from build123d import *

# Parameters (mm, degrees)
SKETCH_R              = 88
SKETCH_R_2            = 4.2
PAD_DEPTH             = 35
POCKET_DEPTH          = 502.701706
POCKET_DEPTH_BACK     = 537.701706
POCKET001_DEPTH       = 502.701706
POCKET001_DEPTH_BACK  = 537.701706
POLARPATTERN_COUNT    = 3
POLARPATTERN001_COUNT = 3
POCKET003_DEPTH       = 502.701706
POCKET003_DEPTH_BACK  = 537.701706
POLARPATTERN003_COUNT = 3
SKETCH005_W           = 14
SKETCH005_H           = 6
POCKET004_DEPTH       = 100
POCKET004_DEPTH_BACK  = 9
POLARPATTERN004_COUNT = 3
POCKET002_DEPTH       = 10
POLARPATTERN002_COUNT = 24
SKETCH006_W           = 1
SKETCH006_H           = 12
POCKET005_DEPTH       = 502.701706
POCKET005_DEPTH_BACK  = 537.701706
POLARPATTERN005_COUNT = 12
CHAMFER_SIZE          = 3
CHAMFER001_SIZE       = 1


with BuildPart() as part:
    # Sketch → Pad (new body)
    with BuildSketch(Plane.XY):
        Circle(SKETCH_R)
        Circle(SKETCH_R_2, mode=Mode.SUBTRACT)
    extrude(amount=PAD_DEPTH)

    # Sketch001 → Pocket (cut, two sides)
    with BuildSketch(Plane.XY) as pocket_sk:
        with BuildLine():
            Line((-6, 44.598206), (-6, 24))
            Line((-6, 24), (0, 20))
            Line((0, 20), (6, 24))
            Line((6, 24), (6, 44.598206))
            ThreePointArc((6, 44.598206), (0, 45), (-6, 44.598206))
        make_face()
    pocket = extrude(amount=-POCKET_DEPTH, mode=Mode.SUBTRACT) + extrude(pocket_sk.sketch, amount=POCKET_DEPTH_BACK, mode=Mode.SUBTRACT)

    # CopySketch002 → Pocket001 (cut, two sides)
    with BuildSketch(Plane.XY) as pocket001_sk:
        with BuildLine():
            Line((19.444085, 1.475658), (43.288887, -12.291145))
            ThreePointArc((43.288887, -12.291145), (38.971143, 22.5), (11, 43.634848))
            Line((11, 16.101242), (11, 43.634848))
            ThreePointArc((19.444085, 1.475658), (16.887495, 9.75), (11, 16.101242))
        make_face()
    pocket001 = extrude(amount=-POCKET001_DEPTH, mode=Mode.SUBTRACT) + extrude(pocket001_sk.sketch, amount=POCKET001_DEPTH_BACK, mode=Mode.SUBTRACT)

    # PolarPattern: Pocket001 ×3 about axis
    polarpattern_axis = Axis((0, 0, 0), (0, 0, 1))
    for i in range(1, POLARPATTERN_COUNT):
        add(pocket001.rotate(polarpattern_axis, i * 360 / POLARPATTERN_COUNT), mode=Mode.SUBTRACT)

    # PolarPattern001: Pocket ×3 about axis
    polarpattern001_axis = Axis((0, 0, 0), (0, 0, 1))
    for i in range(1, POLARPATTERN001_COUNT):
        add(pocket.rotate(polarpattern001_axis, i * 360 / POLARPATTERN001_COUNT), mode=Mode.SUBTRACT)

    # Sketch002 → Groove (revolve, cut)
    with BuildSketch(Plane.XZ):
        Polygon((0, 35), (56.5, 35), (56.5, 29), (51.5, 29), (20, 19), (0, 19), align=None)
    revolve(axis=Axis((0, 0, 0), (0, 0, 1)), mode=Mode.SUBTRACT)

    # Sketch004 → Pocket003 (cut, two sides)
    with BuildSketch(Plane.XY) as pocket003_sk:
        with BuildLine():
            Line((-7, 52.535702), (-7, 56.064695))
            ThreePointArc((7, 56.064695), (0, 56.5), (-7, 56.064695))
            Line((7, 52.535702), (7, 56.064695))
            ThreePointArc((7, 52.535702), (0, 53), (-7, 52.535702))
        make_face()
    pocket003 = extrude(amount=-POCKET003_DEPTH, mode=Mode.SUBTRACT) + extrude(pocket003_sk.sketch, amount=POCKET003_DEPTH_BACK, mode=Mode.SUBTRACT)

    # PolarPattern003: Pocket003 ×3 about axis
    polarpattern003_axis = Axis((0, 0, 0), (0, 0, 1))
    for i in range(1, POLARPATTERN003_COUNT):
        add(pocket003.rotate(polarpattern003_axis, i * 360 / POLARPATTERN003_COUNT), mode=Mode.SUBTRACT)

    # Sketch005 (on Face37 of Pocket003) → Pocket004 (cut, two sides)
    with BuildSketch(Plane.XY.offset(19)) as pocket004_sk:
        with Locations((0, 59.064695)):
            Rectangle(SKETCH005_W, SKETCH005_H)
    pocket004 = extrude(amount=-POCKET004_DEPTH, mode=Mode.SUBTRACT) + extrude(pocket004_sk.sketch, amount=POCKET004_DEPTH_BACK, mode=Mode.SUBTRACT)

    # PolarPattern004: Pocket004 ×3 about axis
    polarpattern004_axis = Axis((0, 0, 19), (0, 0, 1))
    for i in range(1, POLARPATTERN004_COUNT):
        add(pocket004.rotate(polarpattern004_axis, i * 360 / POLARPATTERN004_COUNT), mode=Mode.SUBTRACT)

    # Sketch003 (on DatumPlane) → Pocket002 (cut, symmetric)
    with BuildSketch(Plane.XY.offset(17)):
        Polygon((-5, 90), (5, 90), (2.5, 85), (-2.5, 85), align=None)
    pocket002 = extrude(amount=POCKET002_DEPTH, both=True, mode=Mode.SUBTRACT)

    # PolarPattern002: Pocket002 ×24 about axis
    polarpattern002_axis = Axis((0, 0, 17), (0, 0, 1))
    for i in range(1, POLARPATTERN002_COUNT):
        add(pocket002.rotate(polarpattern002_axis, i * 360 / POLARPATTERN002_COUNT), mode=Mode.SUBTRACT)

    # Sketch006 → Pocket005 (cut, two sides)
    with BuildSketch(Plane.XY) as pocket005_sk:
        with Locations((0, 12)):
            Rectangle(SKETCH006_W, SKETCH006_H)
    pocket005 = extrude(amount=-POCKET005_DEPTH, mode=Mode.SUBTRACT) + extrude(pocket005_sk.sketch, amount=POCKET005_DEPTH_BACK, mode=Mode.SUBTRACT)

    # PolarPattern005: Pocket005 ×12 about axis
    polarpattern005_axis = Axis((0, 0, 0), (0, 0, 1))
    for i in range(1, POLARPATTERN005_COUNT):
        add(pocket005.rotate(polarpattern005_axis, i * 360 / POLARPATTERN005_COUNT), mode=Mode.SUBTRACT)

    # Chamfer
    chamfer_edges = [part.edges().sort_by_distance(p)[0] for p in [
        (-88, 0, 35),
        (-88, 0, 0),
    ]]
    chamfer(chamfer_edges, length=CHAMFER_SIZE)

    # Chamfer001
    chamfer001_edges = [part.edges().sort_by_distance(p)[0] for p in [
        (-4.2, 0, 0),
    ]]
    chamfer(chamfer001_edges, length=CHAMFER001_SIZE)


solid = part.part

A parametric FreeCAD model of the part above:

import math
import FreeCAD as App
import Part
import Sketcher

V = App.Vector
Q = App.Units.Quantity


def edges_at(feature, points):
    """Names of the edges that pass closest to the given points."""
    edges = feature.Shape.Edges
    near = lambda p: min(range(len(edges)), key=lambda i: edges[i].distToShape(Part.Vertex(*p))[0])
    return sorted({f"Edge{near(p) + 1}" for p in points})

doc = App.newDocument("Part")
body = doc.addObject("PartDesign::Body", "Body")

# Sketch on XY plane
sketch1 = body.newObject("Sketcher::SketchObject", "Sketch")
sketch1.AttachmentSupport = (doc.getObject("XY_Plane"), [""])
sketch1.MapMode = "FlatFace"
sketch1.addGeometry(Part.Circle(V(0, 0, 0), V(0, 0, 1), 88), False)
sketch1.addGeometry(Part.Circle(V(0, 0, 0), V(0, 0, 1), 4.2), False)
sketch1.addConstraint(Sketcher.Constraint("Coincident", 0, 3, -1, 1))
sketch1.addConstraint(Sketcher.Constraint("Coincident", 1, 3, -1, 1))
sketch1.addConstraint(Sketcher.Constraint("Diameter", 0, Q("176 mm")))
sketch1.addConstraint(Sketcher.Constraint("Diameter", 1, Q("8.4 mm")))
pad1 = body.newObject("PartDesign::Pad", "Pad")
pad1.Profile = sketch1
pad1.Length = 35

# Sketch on XY plane
sketch2 = body.newObject("Sketcher::SketchObject", "Sketch001")
sketch2.AttachmentSupport = (doc.getObject("XY_Plane"), [""])
sketch2.MapMode = "FlatFace"
sketch2.addGeometry(Part.LineSegment(V(-6, 44.598206, 0), V(-6, 24, 0)), False)
sketch2.addGeometry(Part.LineSegment(V(-6, 24, 0), V(0, 20, 0)), False)
sketch2.addGeometry(Part.LineSegment(V(0, 20, 0), V(6, 24, 0)), False)
sketch2.addGeometry(Part.LineSegment(V(6, 24, 0), V(6, 44.598206, 0)), False)
sketch2.addGeometry(Part.ArcOfCircle(Part.Circle(V(0, 0.000027, 0), V(0, 0, 1), 44.999973), math.radians(82.33774), math.radians(97.66226)), False)
sketch2.addConstraint(Sketcher.Constraint("Coincident", 0, 2, 1, 1))
sketch2.addConstraint(Sketcher.Constraint("Coincident", 1, 2, 2, 1))
sketch2.addConstraint(Sketcher.Constraint("Coincident", 2, 2, 3, 1))
sketch2.addConstraint(Sketcher.Constraint("Coincident", 3, 2, 4, 1))
sketch2.addConstraint(Sketcher.Constraint("Coincident", 4, 2, 0, 1))
sketch2.addConstraint(Sketcher.Constraint("Vertical", 0))
sketch2.addConstraint(Sketcher.Constraint("Vertical", 3))
sketch2.addConstraint(Sketcher.Constraint("Symmetric", 0, 2, 2, 2, -2))
sketch2.addConstraint(Sketcher.Constraint("PointOnObject", 4, 3, -2))
sketch2.addConstraint(Sketcher.Constraint("PointOnObject", 1, 2, -2))
sketch2.addConstraint(Sketcher.Constraint("DistanceX", 0, 2, -1, 1, Q("6 mm")))
sketch2.addConstraint(Sketcher.Constraint("DistanceY", -1, 1, 0, 2, Q("24 mm")))
sketch2.addConstraint(Sketcher.Constraint("DistanceY", -1, 1, 1, 2, Q("20 mm")))
sketch2.addConstraint(Sketcher.Constraint("Radius", 4, Q("44.999973 mm")))
sketch2.addConstraint(Sketcher.Constraint("DistanceY", 0, 2, 0, 1, Q("20.598206 mm")))
pocket1 = body.newObject("PartDesign::Pocket", "Pocket")
pocket1.Profile = sketch2
pocket1.Type = "ThroughAll"
pocket1.Midplane = True

# Sketch on XY plane
sketch3 = body.newObject("Sketcher::SketchObject", "Sketch002")
sketch3.AttachmentSupport = (doc.getObject("XY_Plane"), [""])
sketch3.MapMode = "FlatFace"
sketch3.addGeometry(Part.LineSegment(V(19.444085, 1.475658, 0), V(43.288887, -12.291145, 0)), False)
sketch3.addGeometry(Part.ArcOfCircle(Part.Circle(V(0.000001, 0, 0), V(0, 0, 1), 44.999999), math.radians(-15.850996), math.radians(75.850996)), False)
sketch3.addGeometry(Part.LineSegment(V(11, 43.634848, 0), V(11, 16.101242, 0)), False)
sketch3.addGeometry(Part.ArcOfCircle(Part.Circle(V(-0.000003, -0.000002, 0), V(0, 0, 1), 19.500003), math.radians(4.339999), math.radians(55.660001)), False)
sketch3.addConstraint(Sketcher.Constraint("Coincident", 0, 2, 1, 1))
sketch3.addConstraint(Sketcher.Constraint("Coincident", 1, 2, 2, 1))
sketch3.addConstraint(Sketcher.Constraint("Coincident", 2, 2, 3, 2))
sketch3.addConstraint(Sketcher.Constraint("Coincident", 3, 1, 0, 1))
sketch3.addConstraint(Sketcher.Constraint("Vertical", 2))
sketch3.addConstraint(Sketcher.Constraint("Coincident", 1, 3, -1, 1))
sketch3.addConstraint(Sketcher.Constraint("Coincident", 3, 3, -1, 1))
sketch3.addConstraint(Sketcher.Constraint("Radius", 1, Q("44.999999 mm")))
sketch3.addConstraint(Sketcher.Constraint("Angle", 0, Q("-30 deg")))
sketch3.addConstraint(Sketcher.Constraint("DistanceX", -1, 1, 1, 2, Q("11 mm")))
sketch3.addConstraint(Sketcher.Constraint("Radius", 3, Q("19.500003 mm")))
sketch3.addConstraint(Sketcher.Constraint("DistanceX", 3, 1, 0, 2, Q("23.844802 mm")))
pocket2 = body.newObject("PartDesign::Pocket", "Pocket001")
pocket2.Profile = sketch3
pocket2.Type = "ThroughAll"
pocket2.Midplane = True
doc.recompute()

polarpattern = body.newObject("PartDesign::PolarPattern", "PolarPattern")
polarpattern.Originals = [pocket2]
polarpattern.Axis = (doc.getObject("Z_Axis"), [""])
polarpattern.Angle = 360
polarpattern.Occurrences = 3
body.Tip = polarpattern
doc.recompute()

polarpattern2 = body.newObject("PartDesign::PolarPattern", "PolarPattern001")
polarpattern2.Originals = [pocket1]
polarpattern2.Axis = (doc.getObject("Z_Axis"), [""])
polarpattern2.Angle = 360
polarpattern2.Occurrences = 3
body.Tip = polarpattern2

# Sketch on XZ plane
sketch4 = body.newObject("Sketcher::SketchObject", "Sketch003")
sketch4.AttachmentSupport = (doc.getObject("XZ_Plane"), [""])
sketch4.MapMode = "FlatFace"
sketch4.addGeometry(Part.LineSegment(V(56.5, 35, 0), V(0, 35, 0)), False)
sketch4.addGeometry(Part.LineSegment(V(0, 35, 0), V(0, 19, 0)), False)
sketch4.addGeometry(Part.LineSegment(V(0, 19, 0), V(20, 19, 0)), False)
sketch4.addGeometry(Part.LineSegment(V(20, 19, 0), V(51.5, 29, 0)), False)
sketch4.addGeometry(Part.LineSegment(V(51.5, 29, 0), V(56.5, 29, 0)), False)
sketch4.addGeometry(Part.LineSegment(V(56.5, 29, 0), V(56.5, 35, 0)), False)
sketch4.addConstraint(Sketcher.Constraint("Coincident", 0, 2, 1, 1))
sketch4.addConstraint(Sketcher.Constraint("Coincident", 1, 2, 2, 1))
sketch4.addConstraint(Sketcher.Constraint("Coincident", 2, 2, 3, 1))
sketch4.addConstraint(Sketcher.Constraint("Coincident", 3, 2, 4, 1))
sketch4.addConstraint(Sketcher.Constraint("Coincident", 4, 2, 5, 1))
sketch4.addConstraint(Sketcher.Constraint("Coincident", 5, 2, 0, 1))
sketch4.addConstraint(Sketcher.Constraint("Horizontal", 0))
sketch4.addConstraint(Sketcher.Constraint("Vertical", 1))
sketch4.addConstraint(Sketcher.Constraint("Horizontal", 2))
sketch4.addConstraint(Sketcher.Constraint("Horizontal", 4))
sketch4.addConstraint(Sketcher.Constraint("Vertical", 5))
sketch4.addConstraint(Sketcher.Constraint("PointOnObject", 0, 2, -2))
sketch4.addConstraint(Sketcher.Constraint("DistanceX", 2, 1, 2, 2, Q("20 mm")))
sketch4.addConstraint(Sketcher.Constraint("DistanceX", 4, 1, 4, 2, Q("5 mm")))
sketch4.addConstraint(Sketcher.Constraint("DistanceY", 1, 2, 1, 1, Q("16 mm")))
sketch4.addConstraint(Sketcher.Constraint("DistanceY", 5, 1, 5, 2, Q("6 mm")))
sketch4.addConstraint(Sketcher.Constraint("DistanceX", 0, 2, 0, 1, Q("56.5 mm")))
sketch4.addConstraint(Sketcher.Constraint("DistanceY", -1, 1, 0, 2, Q("35 mm")))
groove = body.newObject("PartDesign::Groove", "Groove")
groove.Profile = sketch4
groove.ReferenceAxis = (sketch4, ["V_Axis"])
groove.Angle = 360

# Sketch on XY plane
sketch5 = body.newObject("Sketcher::SketchObject", "Sketch004")
sketch5.AttachmentSupport = (doc.getObject("XY_Plane"), [""])
sketch5.MapMode = "FlatFace"
sketch5.addGeometry(Part.LineSegment(V(-7, 56.064695, 0), V(-7, 52.535702, 0)), False)
sketch5.addGeometry(Part.ArcOfCircle(Part.Circle(V(0, 0.000017, 0), V(0, 0, 1), 52.999983), math.radians(82.410455), math.radians(97.589545)), False)
sketch5.addGeometry(Part.LineSegment(V(7, 52.535702, 0), V(7, 56.064695, 0)), False)
sketch5.addGeometry(Part.ArcOfCircle(Part.Circle(V(0, -0.000029, 0), V(0, 0, 1), 56.500029), math.radians(82.883125), math.radians(97.116875)), False)
sketch5.addConstraint(Sketcher.Constraint("Coincident", 0, 2, 1, 2))
sketch5.addConstraint(Sketcher.Constraint("Coincident", 1, 1, 2, 1))
sketch5.addConstraint(Sketcher.Constraint("Coincident", 2, 2, 3, 1))
sketch5.addConstraint(Sketcher.Constraint("Coincident", 3, 2, 0, 1))
sketch5.addConstraint(Sketcher.Constraint("Vertical", 0))
sketch5.addConstraint(Sketcher.Constraint("Vertical", 2))
sketch5.addConstraint(Sketcher.Constraint("Symmetric", 0, 2, 1, 1, -2))
sketch5.addConstraint(Sketcher.Constraint("PointOnObject", 3, 3, -2))
sketch5.addConstraint(Sketcher.Constraint("DistanceX", 0, 2, -1, 1, Q("7 mm")))
sketch5.addConstraint(Sketcher.Constraint("Radius", 3, Q("56.500029 mm")))
sketch5.addConstraint(Sketcher.Constraint("Radius", 1, Q("52.999983 mm")))
sketch5.addConstraint(Sketcher.Constraint("DistanceY", -1, 1, 1, 1, Q("52.535702 mm")))
sketch5.addConstraint(Sketcher.Constraint("DistanceY", 0, 2, 0, 1, Q("3.528993 mm")))
pocket3 = body.newObject("PartDesign::Pocket", "Pocket002")
pocket3.Profile = sketch5
pocket3.Type = "ThroughAll"
pocket3.Midplane = True
doc.recompute()

polarpattern3 = body.newObject("PartDesign::PolarPattern", "PolarPattern002")
polarpattern3.Originals = [pocket3]
polarpattern3.Axis = (doc.getObject("Z_Axis"), [""])
polarpattern3.Angle = 360
polarpattern3.Occurrences = 3
body.Tip = polarpattern3

# Sketch on XY plane
sketch6 = body.newObject("Sketcher::SketchObject", "Sketch005")
sketch6.AttachmentSupport = (doc.getObject("XY_Plane"), [""])
sketch6.MapMode = "FlatFace"
sketch6.AttachmentOffset = App.Placement(V(0, 0, 19), App.Rotation())
sketch6.addGeometry(Part.LineSegment(V(-7, 62.064695, 0), V(-7, 56.064695, 0)), False)
sketch6.addGeometry(Part.LineSegment(V(-7, 56.064695, 0), V(7, 56.064695, 0)), False)
sketch6.addGeometry(Part.LineSegment(V(7, 56.064695, 0), V(7, 62.064695, 0)), False)
sketch6.addGeometry(Part.LineSegment(V(7, 62.064695, 0), V(-7, 62.064695, 0)), False)
sketch6.addConstraint(Sketcher.Constraint("Coincident", 0, 2, 1, 1))
sketch6.addConstraint(Sketcher.Constraint("Coincident", 1, 2, 2, 1))
sketch6.addConstraint(Sketcher.Constraint("Coincident", 2, 2, 3, 1))
sketch6.addConstraint(Sketcher.Constraint("Coincident", 3, 2, 0, 1))
sketch6.addConstraint(Sketcher.Constraint("Vertical", 0))
sketch6.addConstraint(Sketcher.Constraint("Horizontal", 1))
sketch6.addConstraint(Sketcher.Constraint("Vertical", 2))
sketch6.addConstraint(Sketcher.Constraint("Horizontal", 3))
sketch6.addConstraint(Sketcher.Constraint("DistanceX", 1, 1, 1, 2, Q("14 mm")))
sketch6.addConstraint(Sketcher.Constraint("DistanceY", 0, 2, 0, 1, Q("6 mm")))
sketch6.addConstraint(Sketcher.Constraint("DistanceX", 0, 2, -1, 1, Q("7 mm")))
sketch6.addConstraint(Sketcher.Constraint("DistanceY", -1, 1, 0, 2, Q("56.064695 mm")))
pocket4 = body.newObject("PartDesign::Pocket", "Pocket003")
pocket4.Profile = sketch6
pocket4.Type = "TwoLengths"
pocket4.Length = 100
pocket4.Length2 = 9
doc.recompute()

polarpattern4 = body.newObject("PartDesign::PolarPattern", "PolarPattern003")
polarpattern4.Originals = [pocket4]
polarpattern4.Axis = (doc.getObject("Z_Axis"), [""])
polarpattern4.Angle = 360
polarpattern4.Occurrences = 3
body.Tip = polarpattern4

# Sketch on XY plane
sketch7 = body.newObject("Sketcher::SketchObject", "Sketch006")
sketch7.AttachmentSupport = (doc.getObject("XY_Plane"), [""])
sketch7.MapMode = "FlatFace"
sketch7.AttachmentOffset = App.Placement(V(0, 0, 17), App.Rotation())
sketch7.addGeometry(Part.LineSegment(V(5, 90, 0), V(-5, 90, 0)), False)
sketch7.addGeometry(Part.LineSegment(V(-5, 90, 0), V(-2.5, 85, 0)), False)
sketch7.addGeometry(Part.LineSegment(V(-2.5, 85, 0), V(2.5, 85, 0)), False)
sketch7.addGeometry(Part.LineSegment(V(2.5, 85, 0), V(5, 90, 0)), False)
sketch7.addConstraint(Sketcher.Constraint("Coincident", 0, 2, 1, 1))
sketch7.addConstraint(Sketcher.Constraint("Coincident", 1, 2, 2, 1))
sketch7.addConstraint(Sketcher.Constraint("Coincident", 2, 2, 3, 1))
sketch7.addConstraint(Sketcher.Constraint("Coincident", 3, 2, 0, 1))
sketch7.addConstraint(Sketcher.Constraint("Horizontal", 0))
sketch7.addConstraint(Sketcher.Constraint("Horizontal", 2))
sketch7.addConstraint(Sketcher.Constraint("Equal", 1, 3))
sketch7.addConstraint(Sketcher.Constraint("DistanceX", 0, 2, 0, 1, Q("10 mm")))
sketch7.addConstraint(Sketcher.Constraint("DistanceX", 2, 1, 2, 2, Q("5 mm")))
sketch7.addConstraint(Sketcher.Constraint("DistanceX", 0, 2, -1, 1, Q("5 mm")))
sketch7.addConstraint(Sketcher.Constraint("DistanceY", -1, 1, 0, 2, Q("90 mm")))
sketch7.addConstraint(Sketcher.Constraint("DistanceY", -1, 1, 1, 2, Q("85 mm")))
pocket5 = body.newObject("PartDesign::Pocket", "Pocket004")
pocket5.Profile = sketch7
pocket5.Length = 20
pocket5.Midplane = True
doc.recompute()

polarpattern5 = body.newObject("PartDesign::PolarPattern", "PolarPattern004")
polarpattern5.Originals = [pocket5]
polarpattern5.Axis = (doc.getObject("Z_Axis"), [""])
polarpattern5.Angle = 360
polarpattern5.Occurrences = 24
body.Tip = polarpattern5

# Sketch on XY plane
sketch8 = body.newObject("Sketcher::SketchObject", "Sketch007")
sketch8.AttachmentSupport = (doc.getObject("XY_Plane"), [""])
sketch8.MapMode = "FlatFace"
sketch8.addGeometry(Part.LineSegment(V(-0.5, 18, 0), V(-0.5, 6, 0)), False)
sketch8.addGeometry(Part.LineSegment(V(-0.5, 6, 0), V(0.5, 6, 0)), False)
sketch8.addGeometry(Part.LineSegment(V(0.5, 6, 0), V(0.5, 18, 0)), False)
sketch8.addGeometry(Part.LineSegment(V(0.5, 18, 0), V(-0.5, 18, 0)), False)
sketch8.addConstraint(Sketcher.Constraint("Coincident", 0, 2, 1, 1))
sketch8.addConstraint(Sketcher.Constraint("Coincident", 1, 2, 2, 1))
sketch8.addConstraint(Sketcher.Constraint("Coincident", 2, 2, 3, 1))
sketch8.addConstraint(Sketcher.Constraint("Coincident", 3, 2, 0, 1))
sketch8.addConstraint(Sketcher.Constraint("Vertical", 0))
sketch8.addConstraint(Sketcher.Constraint("Horizontal", 1))
sketch8.addConstraint(Sketcher.Constraint("Vertical", 2))
sketch8.addConstraint(Sketcher.Constraint("Horizontal", 3))
sketch8.addConstraint(Sketcher.Constraint("DistanceX", 1, 1, 1, 2, Q("1 mm")))
sketch8.addConstraint(Sketcher.Constraint("DistanceY", 0, 2, 0, 1, Q("12 mm")))
sketch8.addConstraint(Sketcher.Constraint("DistanceY", -1, 1, 0, 2, Q("6 mm")))
sketch8.addConstraint(Sketcher.Constraint("DistanceX", 0, 2, -1, 1, Q("0.5 mm")))
pocket6 = body.newObject("PartDesign::Pocket", "Pocket005")
pocket6.Profile = sketch8
pocket6.Type = "ThroughAll"
pocket6.Midplane = True
doc.recompute()

polarpattern6 = body.newObject("PartDesign::PolarPattern", "PolarPattern005")
polarpattern6.Originals = [pocket6]
polarpattern6.Axis = (doc.getObject("Z_Axis"), [""])
polarpattern6.Angle = 360
polarpattern6.Occurrences = 12
body.Tip = polarpattern6
doc.recompute()

chamfer = body.newObject("PartDesign::Chamfer", "Chamfer")
chamfer.Base = (polarpattern6, edges_at(polarpattern6, [(-88, 0, 35), (-88, 0, 0)]))
chamfer.Size = 3
doc.recompute()

chamfer2 = body.newObject("PartDesign::Chamfer", "Chamfer001")
chamfer2.Base = (chamfer, edges_at(chamfer, [(-4.2, 0, 0)]))
chamfer2.Size = 1

doc.recompute()
